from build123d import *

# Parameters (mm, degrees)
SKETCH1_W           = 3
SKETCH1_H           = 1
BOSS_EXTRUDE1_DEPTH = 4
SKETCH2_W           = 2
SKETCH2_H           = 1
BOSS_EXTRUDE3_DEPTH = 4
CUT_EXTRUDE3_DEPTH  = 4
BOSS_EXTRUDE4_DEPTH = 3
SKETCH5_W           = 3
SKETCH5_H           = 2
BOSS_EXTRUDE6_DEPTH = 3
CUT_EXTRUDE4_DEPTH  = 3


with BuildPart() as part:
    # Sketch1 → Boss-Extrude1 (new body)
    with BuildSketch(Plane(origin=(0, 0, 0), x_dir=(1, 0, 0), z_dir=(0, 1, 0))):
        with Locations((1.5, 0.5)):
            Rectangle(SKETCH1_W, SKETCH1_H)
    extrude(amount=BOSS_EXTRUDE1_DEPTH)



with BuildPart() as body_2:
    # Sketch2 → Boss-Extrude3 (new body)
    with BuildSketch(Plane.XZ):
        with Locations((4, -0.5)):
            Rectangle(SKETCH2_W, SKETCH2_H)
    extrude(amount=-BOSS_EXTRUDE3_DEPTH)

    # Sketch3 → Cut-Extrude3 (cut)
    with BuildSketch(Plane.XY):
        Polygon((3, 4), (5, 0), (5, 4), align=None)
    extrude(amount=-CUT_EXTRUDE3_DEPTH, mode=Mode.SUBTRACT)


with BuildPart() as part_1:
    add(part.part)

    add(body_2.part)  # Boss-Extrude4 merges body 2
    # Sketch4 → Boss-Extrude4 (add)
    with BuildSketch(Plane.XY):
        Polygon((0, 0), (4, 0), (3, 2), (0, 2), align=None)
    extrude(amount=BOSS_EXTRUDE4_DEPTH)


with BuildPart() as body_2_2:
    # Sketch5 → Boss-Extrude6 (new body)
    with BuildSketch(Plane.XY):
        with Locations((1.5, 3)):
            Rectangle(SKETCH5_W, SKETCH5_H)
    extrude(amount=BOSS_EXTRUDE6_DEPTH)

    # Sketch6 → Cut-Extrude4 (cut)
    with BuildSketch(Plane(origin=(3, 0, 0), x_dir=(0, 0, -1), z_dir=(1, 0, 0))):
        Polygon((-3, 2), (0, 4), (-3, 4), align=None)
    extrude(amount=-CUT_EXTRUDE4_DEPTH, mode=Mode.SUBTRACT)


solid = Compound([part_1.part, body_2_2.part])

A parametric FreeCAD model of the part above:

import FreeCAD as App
import Part
import Sketcher

V = App.Vector
Q = App.Units.Quantity

doc = App.newDocument("Part")
body = doc.addObject("PartDesign::Body", "Body")

# Sketch on XZ plane
sketch1 = doc.addObject("Sketcher::SketchObject", "Sketch")
body.addObject(sketch1)
sketch1.AttachmentSupport = (doc.XZ_Plane, [""])
sketch1.MapMode = "FlatFace"
sketch1.addGeometry([
    Part.LineSegment(V(0, -1, 0), V(0, 0, 0)),
    Part.LineSegment(V(0, 0, 0), V(3, 0, 0)),
    Part.LineSegment(V(3, 0, 0), V(3, -1, 0)),
    Part.LineSegment(V(3, -1, 0), V(0, -1, 0)),
], False)
sketch1.addConstraint([
    Sketcher.Constraint("Coincident", 0, 2, 1, 1),
    Sketcher.Constraint("Coincident", 1, 2, 2, 1),
    Sketcher.Constraint("Coincident", 2, 2, 3, 1),
    Sketcher.Constraint("Coincident", 3, 2, 0, 1),
    Sketcher.Constraint("Vertical", 0),
    Sketcher.Constraint("Horizontal", 1),
    Sketcher.Constraint("Vertical", 2),
    Sketcher.Constraint("Horizontal", 3),
    Sketcher.Constraint("Coincident", 0, 2, -1, 1),
    Sketcher.Constraint("DistanceX", 1, 1, 1, 2, Q("3 mm")),
    Sketcher.Constraint("DistanceY", 0, 1, 0, 2, Q("1 mm")),
])
pad1 = doc.addObject("PartDesign::Pad", "Pad")
body.addObject(pad1)
pad1.Profile = sketch1
pad1.Length = 4
pad1.Reversed = True
body2 = doc.addObject("PartDesign::Body", "Body001")

# Sketch on XZ plane
sketch2 = doc.addObject("Sketcher::SketchObject", "Sketch001")
body2.addObject(sketch2)
sketch2.AttachmentSupport = (doc.getObject("XZ_Plane001"), [""])
sketch2.MapMode = "FlatFace"
sketch2.addGeometry([
    Part.LineSegment(V(3, 0, 0), V(3, -1, 0)),
    Part.LineSegment(V(3, -1, 0), V(5, -1, 0)),
    Part.LineSegment(V(5, -1, 0), V(5, 0, 0)),
    Part.LineSegment(V(5, 0, 0), V(3, 0, 0)),
], False)
sketch2.addConstraint([
    Sketcher.Constraint("Coincident", 0, 2, 1, 1),
    Sketcher.Constraint("Coincident", 1, 2, 2, 1),
    Sketcher.Constraint("Coincident", 2, 2, 3, 1),
    Sketcher.Constraint("Coincident", 3, 2, 0, 1),
    Sketcher.Constraint("Vertical", 0),
    Sketcher.Constraint("Horizontal", 1),
    Sketcher.Constraint("Vertical", 2),
    Sketcher.Constraint("Horizontal", 3),
    Sketcher.Constraint("PointOnObject", 2, 2, -1),
    Sketcher.Constraint("DistanceX", 1, 1, 1, 2, Q("2 mm")),
    Sketcher.Constraint("DistanceY", 0, 2, 0, 1, Q("1 mm")),
    Sketcher.Constraint("DistanceX", -1, 1, 0, 2, Q("3 mm")),
])
pad2 = doc.addObject("PartDesign::Pad", "Pad001")
body2.addObject(pad2)
pad2.Profile = sketch2
pad2.Length = 4
pad2.Reversed = True

# Sketch on XY plane
sketch3 = doc.addObject("Sketcher::SketchObject", "Sketch002")
body2.addObject(sketch3)
sketch3.AttachmentSupport = (doc.getObject("XY_Plane001"), [""])
sketch3.MapMode = "FlatFace"
sketch3.addGeometry([
    Part.LineSegment(V(3, 4, 0), V(5, 0, 0)),
    Part.LineSegment(V(5, 0, 0), V(5, 4, 0)),
    Part.LineSegment(V(5, 4, 0), V(3, 4, 0)),
], False)
sketch3.addConstraint([
    Sketcher.Constraint("Coincident", 0, 2, 1, 1),
    Sketcher.Constraint("Coincident", 1, 2, 2, 1),
    Sketcher.Constraint("Coincident", 2, 2, 0, 1),
    Sketcher.Constraint("Vertical", 1),
    Sketcher.Constraint("Horizontal", 2),
    Sketcher.Constraint("PointOnObject", 0, 2, -1),
    Sketcher.Constraint("DistanceX", 2, 2, 2, 1, Q("2 mm")),
    Sketcher.Constraint("DistanceY", 1, 1, 1, 2, Q("4 mm")),
    Sketcher.Constraint("DistanceX", -1, 1, 0, 2, Q("5 mm")),
])
pocket1 = doc.addObject("PartDesign::Pocket", "Pocket")
body2.addObject(pocket1)
pocket1.Profile = sketch3
pocket1.Length = 4
doc.recompute()

boolean = doc.addObject("PartDesign::Boolean", "Boolean")
body.addObject(boolean)
boolean.Type = "Fuse"
boolean.addObjects([body2])

# Sketch on XY plane
sketch4 = doc.addObject("Sketcher::SketchObject", "Sketch003")
body.addObject(sketch4)
sketch4.AttachmentSupport = (doc.XY_Plane, [""])
sketch4.MapMode = "FlatFace"
sketch4.addGeometry([
    Part.LineSegment(V(0, 0, 0), V(4, 0, 0)),
    Part.LineSegment(V(4, 0, 0), V(3, 2, 0)),
    Part.LineSegment(V(3, 2, 0), V(0, 2, 0)),
    Part.LineSegment(V(0, 2, 0), V(0, 0, 0)),
], False)
sketch4.addConstraint([
    Sketcher.Constraint("Coincident", 0, 2, 1, 1),
    Sketcher.Constraint("Coincident", 1, 2, 2, 1),
    Sketcher.Constraint("Coincident", 2, 2, 3, 1),
    Sketcher.Constraint("Coincident", 3, 2, 0, 1),
    Sketcher.Constraint("Horizontal", 0),
    Sketcher.Constraint("Horizontal", 2),
    Sketcher.Constraint("Vertical", 3),
    Sketcher.Constraint("Coincident", 3, 2, -1, 1),
    Sketcher.Constraint("DistanceX", 0, 1, 0, 2, Q("4 mm")),
    Sketcher.Constraint("DistanceX", 2, 2, 2, 1, Q("3 mm")),
    Sketcher.Constraint("DistanceY", 3, 2, 3, 1, Q("2 mm")),
])
pad3 = doc.addObject("PartDesign::Pad", "Pad002")
body.addObject(pad3)
pad3.Profile = sketch4
pad3.Length = 3
body3 = doc.addObject("PartDesign::Body", "Body002")

# Sketch on XY plane
sketch5 = doc.addObject("Sketcher::SketchObject", "Sketch004")
body3.addObject(sketch5)
sketch5.AttachmentSupport = (doc.getObject("XY_Plane002"), [""])
sketch5.MapMode = "FlatFace"
sketch5.addGeometry([
    Part.LineSegment(V(0, 4, 0), V(0, 2, 0)),
    Part.LineSegment(V(0, 2, 0), V(3, 2, 0)),
    Part.LineSegment(V(3, 2, 0), V(3, 4, 0)),
    Part.LineSegment(V(3, 4, 0), V(0, 4, 0)),
], False)
sketch5.addConstraint([
    Sketcher.Constraint("Coincident", 0, 2, 1, 1),
    Sketcher.Constraint("Coincident", 1, 2, 2, 1),
    Sketcher.Constraint("Coincident", 2, 2, 3, 1),
    Sketcher.Constraint("Coincident", 3, 2, 0, 1),
    Sketcher.Constraint("Vertical", 0),
    Sketcher.Constraint("Horizontal", 1),
    Sketcher.Constraint("Vertical", 2),
    Sketcher.Constraint("Horizontal", 3),
    Sketcher.Constraint("PointOnObject", 0, 2, -2),
    Sketcher.Constraint("DistanceX", 1, 1, 1, 2, Q("3 mm")),
    Sketcher.Constraint("DistanceY", 0, 2, 0, 1, Q("2 mm")),
    Sketcher.Constraint("DistanceY", -1, 1, 0, 2, Q("2 mm")),
])
pad4 = doc.addObject("PartDesign::Pad", "Pad003")
body3.addObject(pad4)
pad4.Profile = sketch5
pad4.Length = 3

# Sketch on YZ plane
sketch6 = doc.addObject("Sketcher::SketchObject", "Sketch005")
body3.addObject(sketch6)
sketch6.AttachmentSupport = (doc.getObject("YZ_Plane002"), [""])
sketch6.MapMode = "FlatFace"
sketch6.AttachmentOffset = App.Placement(V(0, 0, 3), App.Rotation())
sketch6.addGeometry([
    Part.LineSegment(V(2, 3, 0), V(4, 0, 0)),
    Part.LineSegment(V(4, 0, 0), V(4, 3, 0)),
    Part.LineSegment(V(4, 3, 0), V(2, 3, 0)),
], False)
sketch6.addConstraint([
    Sketcher.Constraint("Coincident", 0, 2, 1, 1),
    Sketcher.Constraint("Coincident", 1, 2, 2, 1),
    Sketcher.Constraint("Coincident", 2, 2, 0, 1),
    Sketcher.Constraint("Vertical", 1),
    Sketcher.Constraint("Horizontal", 2),
    Sketcher.Constraint("PointOnObject", 0, 2, -1),
    Sketcher.Constraint("DistanceX", 2, 2, 2, 1, Q("2 mm")),
    Sketcher.Constraint("DistanceY", 1, 1, 1, 2, Q("3 mm")),
    Sketcher.Constraint("DistanceX", -1, 1, 0, 2, Q("4 mm")),
])
pocket2 = doc.addObject("PartDesign::Pocket", "Pocket001")
body3.addObject(pocket2)
pocket2.Profile = sketch6
pocket2.Length = 3

doc.recompute()
